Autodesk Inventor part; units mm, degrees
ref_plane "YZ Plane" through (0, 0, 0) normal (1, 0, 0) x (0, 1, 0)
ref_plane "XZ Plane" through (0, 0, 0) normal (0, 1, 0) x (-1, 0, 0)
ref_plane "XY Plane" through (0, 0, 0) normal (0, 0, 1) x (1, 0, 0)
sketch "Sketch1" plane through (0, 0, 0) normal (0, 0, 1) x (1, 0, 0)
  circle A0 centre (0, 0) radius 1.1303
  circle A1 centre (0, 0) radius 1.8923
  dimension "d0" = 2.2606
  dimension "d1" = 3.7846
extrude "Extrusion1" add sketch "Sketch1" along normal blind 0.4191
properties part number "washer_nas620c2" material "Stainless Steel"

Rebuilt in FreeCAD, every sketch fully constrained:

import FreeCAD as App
import Part
import Sketcher

V = App.Vector
Q = App.Units.Quantity

doc = App.newDocument("Part")
params = doc.addObject("Spreadsheet::Sheet", "Params")
for row, (alias, value) in enumerate([
    ("sketch1_diameter", "0.149 in"),
    ("sketch1_diameter2", "0.089 in"),
    ("pad1_length", "0.0165 in"),
], start=1):
    params.set(f"A{row}", alias)
    params.set(f"B{row}", "=" + value)
    params.setAlias(f"B{row}", alias)

body = doc.addObject("PartDesign::Body", "Body")

sketch1 = body.newObject("Sketcher::SketchObject", "Sketch")
sketch1.AttachmentSupport = (doc.getObject("XY_Plane"), [""])
sketch1.MapMode = "FlatFace"
sketch1.addGeometry(Part.Circle(V(0, 0, 0), V(0, 0, 1), 1.9), False)
sketch1.addGeometry(Part.Circle(V(0, 0, 0), V(0, 0, 1), 1.1), False)
sketch1.addConstraint(Sketcher.Constraint("Coincident", 0, 3, -1, 1))
sketch1.addConstraint(Sketcher.Constraint("Coincident", 1, 3, -1, 1))
sketch1.addConstraint(Sketcher.Constraint("Diameter", 0, Q("0.149 in")))
sketch1.addConstraint(Sketcher.Constraint("Diameter", 1, Q("0.089 in")))
sketch1.setExpression("Constraints[2]", "Params.sketch1_diameter")
sketch1.setExpression("Constraints[3]", "Params.sketch1_diameter2")
pad1 = body.newObject("PartDesign::Pad", "Pad")
pad1.Profile = sketch1
pad1.setExpression("Length", "Params.pad1_length")

doc.recompute()
